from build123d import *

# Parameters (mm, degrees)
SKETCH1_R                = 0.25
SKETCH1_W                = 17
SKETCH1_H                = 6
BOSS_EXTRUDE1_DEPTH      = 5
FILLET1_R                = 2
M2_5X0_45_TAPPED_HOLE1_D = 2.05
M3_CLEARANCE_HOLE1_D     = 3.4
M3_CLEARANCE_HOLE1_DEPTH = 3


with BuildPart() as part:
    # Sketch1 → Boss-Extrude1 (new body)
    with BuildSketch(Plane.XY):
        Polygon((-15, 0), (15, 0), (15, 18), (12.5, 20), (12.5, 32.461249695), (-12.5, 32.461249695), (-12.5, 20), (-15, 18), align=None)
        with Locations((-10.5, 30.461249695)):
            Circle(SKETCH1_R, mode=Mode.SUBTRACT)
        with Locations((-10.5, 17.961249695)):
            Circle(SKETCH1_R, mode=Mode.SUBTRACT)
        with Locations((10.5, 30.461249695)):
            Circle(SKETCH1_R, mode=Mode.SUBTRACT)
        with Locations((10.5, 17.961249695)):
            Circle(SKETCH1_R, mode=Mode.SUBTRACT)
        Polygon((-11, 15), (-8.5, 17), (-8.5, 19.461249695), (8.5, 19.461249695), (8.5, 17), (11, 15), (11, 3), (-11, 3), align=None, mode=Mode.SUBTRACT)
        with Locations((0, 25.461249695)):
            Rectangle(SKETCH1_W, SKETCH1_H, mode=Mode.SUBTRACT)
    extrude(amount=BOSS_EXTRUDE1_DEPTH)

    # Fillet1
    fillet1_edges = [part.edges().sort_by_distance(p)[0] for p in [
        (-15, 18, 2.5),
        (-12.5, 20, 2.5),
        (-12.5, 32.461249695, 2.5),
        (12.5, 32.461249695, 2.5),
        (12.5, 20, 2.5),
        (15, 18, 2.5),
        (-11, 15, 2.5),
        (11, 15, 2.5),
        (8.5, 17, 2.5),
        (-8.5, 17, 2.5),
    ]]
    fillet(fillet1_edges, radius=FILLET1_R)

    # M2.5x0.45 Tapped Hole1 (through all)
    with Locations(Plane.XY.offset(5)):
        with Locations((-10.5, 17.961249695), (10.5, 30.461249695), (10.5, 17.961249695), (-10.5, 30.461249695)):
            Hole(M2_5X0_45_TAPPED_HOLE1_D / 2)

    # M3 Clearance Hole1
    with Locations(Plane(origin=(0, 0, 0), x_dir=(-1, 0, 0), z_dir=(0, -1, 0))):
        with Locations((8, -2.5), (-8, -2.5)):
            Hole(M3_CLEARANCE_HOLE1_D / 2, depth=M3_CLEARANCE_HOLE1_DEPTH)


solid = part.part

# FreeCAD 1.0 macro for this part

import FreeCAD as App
import Part
import Sketcher
from FreeCAD import Vector
Q = App.Units.Quantity


def edges_at(feature, points):
    """Names of the edges that pass closest to the given points."""
    edges = feature.Shape.Edges
    near = lambda p: min(range(len(edges)), key=lambda i: edges[i].distToShape(Part.Vertex(*p))[0])
    return sorted({f"Edge{near(p) + 1}" for p in points})


def add_polygon(sketch, points):
    """Adds a closed chain of lines whose ends are joined by coincident constraints."""
    first, n = sketch.GeometryCount, len(points)
    for a, b in zip(points, points[1:] + points[:1]):
        sketch.addGeometry(Part.LineSegment(App.Vector(*a, 0), App.Vector(*b, 0)), False)
    for i in range(n):
        sketch.addConstraint(Sketcher.Constraint("Coincident", first + i, 2, first + (i + 1) % n, 1))

doc = App.newDocument("Part")
body = doc.addObject("PartDesign::Body", "Body")

# Sketch on XY plane
sketch1 = body.newObject("Sketcher::SketchObject", "Sketch")
sketch1.AttachmentSupport = (doc.getObject("XY_Plane"), [""])
sketch1.MapMode = "FlatFace"
add_polygon(sketch1, [(-15, 0), (15, 0), (15, 18), (12.5, 20), (12.5, 32.46125), (-12.5, 32.46125), (-12.5, 20), (-15, 18)])  # lines 0-7
add_polygon(sketch1, [(-11, 3), (-11, 15), (-8.5, 17), (-8.5, 19.46125), (8.5, 19.46125), (8.5, 17), (11, 15), (11, 3)])  # lines 8-15
sketch1.addGeometry(Part.Circle(Vector(-10.5, 17.96125, 0), Vector(0, 0, 1), 0.25), False)  # 16
sketch1.addGeometry(Part.Circle(Vector(-10.5, 30.46125, 0), Vector(0, 0, 1), 0.25), False)  # 17
sketch1.addGeometry(Part.Circle(Vector(10.5, 17.96125, 0), Vector(0, 0, 1), 0.25), False)  # 18
add_polygon(sketch1, [(8.5, 22.46125), (-8.5, 22.46125), (-8.5, 28.46125), (8.5, 28.46125)])  # lines 19-22
sketch1.addGeometry(Part.Circle(Vector(10.5, 30.46125, 0), Vector(0, 0, 1), 0.25), False)  # 23
sketch1.addConstraint([
    Sketcher.Constraint("Horizontal", 0),
    Sketcher.Constraint("Vertical", 1),
    Sketcher.Constraint("Vertical", 3),
    Sketcher.Constraint("Horizontal", 4),
    Sketcher.Constraint("Vertical", 5),
    Sketcher.Constraint("Vertical", 7),
    Sketcher.Constraint("Vertical", 8),
    Sketcher.Constraint("Vertical", 10),
    Sketcher.Constraint("Horizontal", 11),
    Sketcher.Constraint("Vertical", 12),
    Sketcher.Constraint("Vertical", 14),
    Sketcher.Constraint("Horizontal", 15),
    Sketcher.Constraint("Horizontal", 19),
    Sketcher.Constraint("Vertical", 20),
    Sketcher.Constraint("Horizontal", 21),
    Sketcher.Constraint("Vertical", 22),
    Sketcher.Constraint("Equal", 16, 17),
    Sketcher.Constraint("Equal", 17, 18),
    Sketcher.Constraint("Equal", 18, 23),
    Sketcher.Constraint("Symmetric", 0, 2, 7, 2, -1, 1),
    Sketcher.Constraint("Symmetric", 16, 3, 18, 3, -2),
    Sketcher.Constraint("Symmetric", 17, 3, 23, 3, -2),
    Sketcher.Constraint("Symmetric", 2, 2, 5, 2, -2),
    Sketcher.Constraint("Symmetric", 9, 2, 12, 2, -2),
    Sketcher.Constraint("Symmetric", 8, 2, 13, 2, -2),
    Sketcher.Constraint("Parallel", 6, 9),
    Sketcher.Constraint("Parallel", 2, 13),
    Sketcher.Constraint("Vertical", 16, 3, 17, 3),
    Sketcher.Constraint("Vertical", 10, 2, 19, 2),
    Sketcher.Constraint("Vertical", 12, 2, 21, 2),
    Sketcher.Constraint("Equal", 6, 9),
    Sketcher.Constraint("Diameter", 16, Q("0.5 mm")),
    Sketcher.Constraint("DistanceX", 0, 1, 0, 2, Q("30 mm")),
    Sketcher.Constraint("DistanceX", 4, 2, 4, 1, Q("25 mm")),
    Sketcher.Constraint("DistanceX", 11, 1, 11, 2, Q("17 mm")),
    Sketcher.Constraint("DistanceY", 1, 1, 1, 2, Q("18 mm")),
    Sketcher.Constraint("DistanceY", 8, 1, 8, 2, Q("12 mm")),
    Sketcher.Constraint("DistanceY", 20, 1, 20, 2, Q("6 mm")),
    Sketcher.Constraint("DistanceY", -1, 1, 2, 2, Q("20 mm")),
    Sketcher.Constraint("DistanceY", -1, 1, 8, 2, Q("15 mm")),
    Sketcher.Constraint("DistanceX", 16, 3, 18, 3, Q("21 mm")),
    Sketcher.Constraint("DistanceY", 23, 3, 3, 2, Q("2 mm")),
    Sketcher.Constraint("DistanceY", 11, 2, 23, 3, Q("11 mm")),
    Sketcher.Constraint("DistanceY", 10, 2, 19, 2, Q("3 mm")),
    Sketcher.Constraint("DistanceY", 16, 3, 17, 3, Q("12.5 mm")),
    Sketcher.Constraint("DistanceY", 3, 1, 3, 2, Q("12.46125 mm")),
])
pad1 = body.newObject("PartDesign::Pad", "Pad")
pad1.Profile = sketch1
pad1.Length = 5
doc.recompute()

fillet = body.newObject("PartDesign::Fillet", "Fillet")
fillet.Base = (pad1, edges_at(pad1, [
    (-15, 18, 2.5),
    (-12.5, 20, 2.5),
    (-12.5, 32.461, 2.5),
    (12.5, 32.461, 2.5),
    (12.5, 20, 2.5),
    (15, 18, 2.5),
    (-11, 15, 2.5),
    (11, 15, 2.5),
    (8.5, 17, 2.5),
    (-8.5, 17, 2.5),
]))
fillet.Radius = 2

# Sketch on XY plane
sketch2 = body.newObject("Sketcher::SketchObject", "Sketch001")
sketch2.AttachmentSupport = (doc.getObject("XY_Plane"), [""])
sketch2.MapMode = "FlatFace"
sketch2.AttachmentOffset = App.Placement(Vector(0, 0, 5), App.Rotation())
sketch2.addGeometry([
    Part.Circle(Vector(-10.5, 17.96125, 0), Vector(0, 0, 1), 1.025),
    Part.Circle(Vector(10.5, 30.46125, 0), Vector(0, 0, 1), 1.025),
    Part.Circle(Vector(10.5, 17.96125, 0), Vector(0, 0, 1), 1.025),
    Part.Circle(Vector(-10.5, 30.46125, 0), Vector(0, 0, 1), 1.025),
], False)
sketch2.addConstraint([
    Sketcher.Constraint("Equal", 0, 1),
    Sketcher.Constraint("Equal", 1, 2),
    Sketcher.Constraint("Equal", 2, 3),
    Sketcher.Constraint("Symmetric", 0, 3, 2, 3, -2),
    Sketcher.Constraint("Symmetric", 1, 3, 3, 3, -2),
    Sketcher.Constraint("Vertical", 1, 3, 2, 3),
    Sketcher.Constraint("Diameter", 0, Q("2.05 mm")),
    Sketcher.Constraint("DistanceX", 0, 3, 1, 3, Q("21 mm")),
    Sketcher.Constraint("DistanceY", 0, 3, 1, 3, Q("12.5 mm")),
    Sketcher.Constraint("DistanceY", -1, 1, 0, 3, Q("17.96125 mm")),
])
doc.recompute()
hole = body.newObject("PartDesign::Hole", "Hole")
hole.Profile = sketch2
hole.ThreadType = "None"
hole.Diameter = 2.05
hole.DepthType = "ThroughAll"

# Sketch on XZ plane
sketch3 = body.newObject("Sketcher::SketchObject", "Sketch002")
sketch3.AttachmentSupport = (doc.getObject("XZ_Plane"), [""])
sketch3.MapMode = "FlatFace"
sketch3.addGeometry([
    Part.Circle(Vector(-8, 2.5, 0), Vector(0, 0, 1), 1.7),
    Part.Circle(Vector(8, 2.5, 0), Vector(0, 0, 1), 1.7),
], False)
sketch3.addConstraint([
    Sketcher.Constraint("Equal", 0, 1),
    Sketcher.Constraint("Symmetric", 0, 3, 1, 3, -2),
    Sketcher.Constraint("Diameter", 0, Q("3.4 mm")),
    Sketcher.Constraint("DistanceX", 0, 3, -1, 1, Q("8 mm")),
    Sketcher.Constraint("DistanceY", -1, 1, 0, 3, Q("2.5 mm")),
])
doc.recompute()
hole2 = body.newObject("PartDesign::Hole", "Hole001")
hole2.Profile = sketch3
hole2.ThreadType = "None"
hole2.Diameter = 3.4
hole2.DepthType = "Dimension"
hole2.Depth = 3
hole2.DrillPoint = "Flat"

doc.recompute()
